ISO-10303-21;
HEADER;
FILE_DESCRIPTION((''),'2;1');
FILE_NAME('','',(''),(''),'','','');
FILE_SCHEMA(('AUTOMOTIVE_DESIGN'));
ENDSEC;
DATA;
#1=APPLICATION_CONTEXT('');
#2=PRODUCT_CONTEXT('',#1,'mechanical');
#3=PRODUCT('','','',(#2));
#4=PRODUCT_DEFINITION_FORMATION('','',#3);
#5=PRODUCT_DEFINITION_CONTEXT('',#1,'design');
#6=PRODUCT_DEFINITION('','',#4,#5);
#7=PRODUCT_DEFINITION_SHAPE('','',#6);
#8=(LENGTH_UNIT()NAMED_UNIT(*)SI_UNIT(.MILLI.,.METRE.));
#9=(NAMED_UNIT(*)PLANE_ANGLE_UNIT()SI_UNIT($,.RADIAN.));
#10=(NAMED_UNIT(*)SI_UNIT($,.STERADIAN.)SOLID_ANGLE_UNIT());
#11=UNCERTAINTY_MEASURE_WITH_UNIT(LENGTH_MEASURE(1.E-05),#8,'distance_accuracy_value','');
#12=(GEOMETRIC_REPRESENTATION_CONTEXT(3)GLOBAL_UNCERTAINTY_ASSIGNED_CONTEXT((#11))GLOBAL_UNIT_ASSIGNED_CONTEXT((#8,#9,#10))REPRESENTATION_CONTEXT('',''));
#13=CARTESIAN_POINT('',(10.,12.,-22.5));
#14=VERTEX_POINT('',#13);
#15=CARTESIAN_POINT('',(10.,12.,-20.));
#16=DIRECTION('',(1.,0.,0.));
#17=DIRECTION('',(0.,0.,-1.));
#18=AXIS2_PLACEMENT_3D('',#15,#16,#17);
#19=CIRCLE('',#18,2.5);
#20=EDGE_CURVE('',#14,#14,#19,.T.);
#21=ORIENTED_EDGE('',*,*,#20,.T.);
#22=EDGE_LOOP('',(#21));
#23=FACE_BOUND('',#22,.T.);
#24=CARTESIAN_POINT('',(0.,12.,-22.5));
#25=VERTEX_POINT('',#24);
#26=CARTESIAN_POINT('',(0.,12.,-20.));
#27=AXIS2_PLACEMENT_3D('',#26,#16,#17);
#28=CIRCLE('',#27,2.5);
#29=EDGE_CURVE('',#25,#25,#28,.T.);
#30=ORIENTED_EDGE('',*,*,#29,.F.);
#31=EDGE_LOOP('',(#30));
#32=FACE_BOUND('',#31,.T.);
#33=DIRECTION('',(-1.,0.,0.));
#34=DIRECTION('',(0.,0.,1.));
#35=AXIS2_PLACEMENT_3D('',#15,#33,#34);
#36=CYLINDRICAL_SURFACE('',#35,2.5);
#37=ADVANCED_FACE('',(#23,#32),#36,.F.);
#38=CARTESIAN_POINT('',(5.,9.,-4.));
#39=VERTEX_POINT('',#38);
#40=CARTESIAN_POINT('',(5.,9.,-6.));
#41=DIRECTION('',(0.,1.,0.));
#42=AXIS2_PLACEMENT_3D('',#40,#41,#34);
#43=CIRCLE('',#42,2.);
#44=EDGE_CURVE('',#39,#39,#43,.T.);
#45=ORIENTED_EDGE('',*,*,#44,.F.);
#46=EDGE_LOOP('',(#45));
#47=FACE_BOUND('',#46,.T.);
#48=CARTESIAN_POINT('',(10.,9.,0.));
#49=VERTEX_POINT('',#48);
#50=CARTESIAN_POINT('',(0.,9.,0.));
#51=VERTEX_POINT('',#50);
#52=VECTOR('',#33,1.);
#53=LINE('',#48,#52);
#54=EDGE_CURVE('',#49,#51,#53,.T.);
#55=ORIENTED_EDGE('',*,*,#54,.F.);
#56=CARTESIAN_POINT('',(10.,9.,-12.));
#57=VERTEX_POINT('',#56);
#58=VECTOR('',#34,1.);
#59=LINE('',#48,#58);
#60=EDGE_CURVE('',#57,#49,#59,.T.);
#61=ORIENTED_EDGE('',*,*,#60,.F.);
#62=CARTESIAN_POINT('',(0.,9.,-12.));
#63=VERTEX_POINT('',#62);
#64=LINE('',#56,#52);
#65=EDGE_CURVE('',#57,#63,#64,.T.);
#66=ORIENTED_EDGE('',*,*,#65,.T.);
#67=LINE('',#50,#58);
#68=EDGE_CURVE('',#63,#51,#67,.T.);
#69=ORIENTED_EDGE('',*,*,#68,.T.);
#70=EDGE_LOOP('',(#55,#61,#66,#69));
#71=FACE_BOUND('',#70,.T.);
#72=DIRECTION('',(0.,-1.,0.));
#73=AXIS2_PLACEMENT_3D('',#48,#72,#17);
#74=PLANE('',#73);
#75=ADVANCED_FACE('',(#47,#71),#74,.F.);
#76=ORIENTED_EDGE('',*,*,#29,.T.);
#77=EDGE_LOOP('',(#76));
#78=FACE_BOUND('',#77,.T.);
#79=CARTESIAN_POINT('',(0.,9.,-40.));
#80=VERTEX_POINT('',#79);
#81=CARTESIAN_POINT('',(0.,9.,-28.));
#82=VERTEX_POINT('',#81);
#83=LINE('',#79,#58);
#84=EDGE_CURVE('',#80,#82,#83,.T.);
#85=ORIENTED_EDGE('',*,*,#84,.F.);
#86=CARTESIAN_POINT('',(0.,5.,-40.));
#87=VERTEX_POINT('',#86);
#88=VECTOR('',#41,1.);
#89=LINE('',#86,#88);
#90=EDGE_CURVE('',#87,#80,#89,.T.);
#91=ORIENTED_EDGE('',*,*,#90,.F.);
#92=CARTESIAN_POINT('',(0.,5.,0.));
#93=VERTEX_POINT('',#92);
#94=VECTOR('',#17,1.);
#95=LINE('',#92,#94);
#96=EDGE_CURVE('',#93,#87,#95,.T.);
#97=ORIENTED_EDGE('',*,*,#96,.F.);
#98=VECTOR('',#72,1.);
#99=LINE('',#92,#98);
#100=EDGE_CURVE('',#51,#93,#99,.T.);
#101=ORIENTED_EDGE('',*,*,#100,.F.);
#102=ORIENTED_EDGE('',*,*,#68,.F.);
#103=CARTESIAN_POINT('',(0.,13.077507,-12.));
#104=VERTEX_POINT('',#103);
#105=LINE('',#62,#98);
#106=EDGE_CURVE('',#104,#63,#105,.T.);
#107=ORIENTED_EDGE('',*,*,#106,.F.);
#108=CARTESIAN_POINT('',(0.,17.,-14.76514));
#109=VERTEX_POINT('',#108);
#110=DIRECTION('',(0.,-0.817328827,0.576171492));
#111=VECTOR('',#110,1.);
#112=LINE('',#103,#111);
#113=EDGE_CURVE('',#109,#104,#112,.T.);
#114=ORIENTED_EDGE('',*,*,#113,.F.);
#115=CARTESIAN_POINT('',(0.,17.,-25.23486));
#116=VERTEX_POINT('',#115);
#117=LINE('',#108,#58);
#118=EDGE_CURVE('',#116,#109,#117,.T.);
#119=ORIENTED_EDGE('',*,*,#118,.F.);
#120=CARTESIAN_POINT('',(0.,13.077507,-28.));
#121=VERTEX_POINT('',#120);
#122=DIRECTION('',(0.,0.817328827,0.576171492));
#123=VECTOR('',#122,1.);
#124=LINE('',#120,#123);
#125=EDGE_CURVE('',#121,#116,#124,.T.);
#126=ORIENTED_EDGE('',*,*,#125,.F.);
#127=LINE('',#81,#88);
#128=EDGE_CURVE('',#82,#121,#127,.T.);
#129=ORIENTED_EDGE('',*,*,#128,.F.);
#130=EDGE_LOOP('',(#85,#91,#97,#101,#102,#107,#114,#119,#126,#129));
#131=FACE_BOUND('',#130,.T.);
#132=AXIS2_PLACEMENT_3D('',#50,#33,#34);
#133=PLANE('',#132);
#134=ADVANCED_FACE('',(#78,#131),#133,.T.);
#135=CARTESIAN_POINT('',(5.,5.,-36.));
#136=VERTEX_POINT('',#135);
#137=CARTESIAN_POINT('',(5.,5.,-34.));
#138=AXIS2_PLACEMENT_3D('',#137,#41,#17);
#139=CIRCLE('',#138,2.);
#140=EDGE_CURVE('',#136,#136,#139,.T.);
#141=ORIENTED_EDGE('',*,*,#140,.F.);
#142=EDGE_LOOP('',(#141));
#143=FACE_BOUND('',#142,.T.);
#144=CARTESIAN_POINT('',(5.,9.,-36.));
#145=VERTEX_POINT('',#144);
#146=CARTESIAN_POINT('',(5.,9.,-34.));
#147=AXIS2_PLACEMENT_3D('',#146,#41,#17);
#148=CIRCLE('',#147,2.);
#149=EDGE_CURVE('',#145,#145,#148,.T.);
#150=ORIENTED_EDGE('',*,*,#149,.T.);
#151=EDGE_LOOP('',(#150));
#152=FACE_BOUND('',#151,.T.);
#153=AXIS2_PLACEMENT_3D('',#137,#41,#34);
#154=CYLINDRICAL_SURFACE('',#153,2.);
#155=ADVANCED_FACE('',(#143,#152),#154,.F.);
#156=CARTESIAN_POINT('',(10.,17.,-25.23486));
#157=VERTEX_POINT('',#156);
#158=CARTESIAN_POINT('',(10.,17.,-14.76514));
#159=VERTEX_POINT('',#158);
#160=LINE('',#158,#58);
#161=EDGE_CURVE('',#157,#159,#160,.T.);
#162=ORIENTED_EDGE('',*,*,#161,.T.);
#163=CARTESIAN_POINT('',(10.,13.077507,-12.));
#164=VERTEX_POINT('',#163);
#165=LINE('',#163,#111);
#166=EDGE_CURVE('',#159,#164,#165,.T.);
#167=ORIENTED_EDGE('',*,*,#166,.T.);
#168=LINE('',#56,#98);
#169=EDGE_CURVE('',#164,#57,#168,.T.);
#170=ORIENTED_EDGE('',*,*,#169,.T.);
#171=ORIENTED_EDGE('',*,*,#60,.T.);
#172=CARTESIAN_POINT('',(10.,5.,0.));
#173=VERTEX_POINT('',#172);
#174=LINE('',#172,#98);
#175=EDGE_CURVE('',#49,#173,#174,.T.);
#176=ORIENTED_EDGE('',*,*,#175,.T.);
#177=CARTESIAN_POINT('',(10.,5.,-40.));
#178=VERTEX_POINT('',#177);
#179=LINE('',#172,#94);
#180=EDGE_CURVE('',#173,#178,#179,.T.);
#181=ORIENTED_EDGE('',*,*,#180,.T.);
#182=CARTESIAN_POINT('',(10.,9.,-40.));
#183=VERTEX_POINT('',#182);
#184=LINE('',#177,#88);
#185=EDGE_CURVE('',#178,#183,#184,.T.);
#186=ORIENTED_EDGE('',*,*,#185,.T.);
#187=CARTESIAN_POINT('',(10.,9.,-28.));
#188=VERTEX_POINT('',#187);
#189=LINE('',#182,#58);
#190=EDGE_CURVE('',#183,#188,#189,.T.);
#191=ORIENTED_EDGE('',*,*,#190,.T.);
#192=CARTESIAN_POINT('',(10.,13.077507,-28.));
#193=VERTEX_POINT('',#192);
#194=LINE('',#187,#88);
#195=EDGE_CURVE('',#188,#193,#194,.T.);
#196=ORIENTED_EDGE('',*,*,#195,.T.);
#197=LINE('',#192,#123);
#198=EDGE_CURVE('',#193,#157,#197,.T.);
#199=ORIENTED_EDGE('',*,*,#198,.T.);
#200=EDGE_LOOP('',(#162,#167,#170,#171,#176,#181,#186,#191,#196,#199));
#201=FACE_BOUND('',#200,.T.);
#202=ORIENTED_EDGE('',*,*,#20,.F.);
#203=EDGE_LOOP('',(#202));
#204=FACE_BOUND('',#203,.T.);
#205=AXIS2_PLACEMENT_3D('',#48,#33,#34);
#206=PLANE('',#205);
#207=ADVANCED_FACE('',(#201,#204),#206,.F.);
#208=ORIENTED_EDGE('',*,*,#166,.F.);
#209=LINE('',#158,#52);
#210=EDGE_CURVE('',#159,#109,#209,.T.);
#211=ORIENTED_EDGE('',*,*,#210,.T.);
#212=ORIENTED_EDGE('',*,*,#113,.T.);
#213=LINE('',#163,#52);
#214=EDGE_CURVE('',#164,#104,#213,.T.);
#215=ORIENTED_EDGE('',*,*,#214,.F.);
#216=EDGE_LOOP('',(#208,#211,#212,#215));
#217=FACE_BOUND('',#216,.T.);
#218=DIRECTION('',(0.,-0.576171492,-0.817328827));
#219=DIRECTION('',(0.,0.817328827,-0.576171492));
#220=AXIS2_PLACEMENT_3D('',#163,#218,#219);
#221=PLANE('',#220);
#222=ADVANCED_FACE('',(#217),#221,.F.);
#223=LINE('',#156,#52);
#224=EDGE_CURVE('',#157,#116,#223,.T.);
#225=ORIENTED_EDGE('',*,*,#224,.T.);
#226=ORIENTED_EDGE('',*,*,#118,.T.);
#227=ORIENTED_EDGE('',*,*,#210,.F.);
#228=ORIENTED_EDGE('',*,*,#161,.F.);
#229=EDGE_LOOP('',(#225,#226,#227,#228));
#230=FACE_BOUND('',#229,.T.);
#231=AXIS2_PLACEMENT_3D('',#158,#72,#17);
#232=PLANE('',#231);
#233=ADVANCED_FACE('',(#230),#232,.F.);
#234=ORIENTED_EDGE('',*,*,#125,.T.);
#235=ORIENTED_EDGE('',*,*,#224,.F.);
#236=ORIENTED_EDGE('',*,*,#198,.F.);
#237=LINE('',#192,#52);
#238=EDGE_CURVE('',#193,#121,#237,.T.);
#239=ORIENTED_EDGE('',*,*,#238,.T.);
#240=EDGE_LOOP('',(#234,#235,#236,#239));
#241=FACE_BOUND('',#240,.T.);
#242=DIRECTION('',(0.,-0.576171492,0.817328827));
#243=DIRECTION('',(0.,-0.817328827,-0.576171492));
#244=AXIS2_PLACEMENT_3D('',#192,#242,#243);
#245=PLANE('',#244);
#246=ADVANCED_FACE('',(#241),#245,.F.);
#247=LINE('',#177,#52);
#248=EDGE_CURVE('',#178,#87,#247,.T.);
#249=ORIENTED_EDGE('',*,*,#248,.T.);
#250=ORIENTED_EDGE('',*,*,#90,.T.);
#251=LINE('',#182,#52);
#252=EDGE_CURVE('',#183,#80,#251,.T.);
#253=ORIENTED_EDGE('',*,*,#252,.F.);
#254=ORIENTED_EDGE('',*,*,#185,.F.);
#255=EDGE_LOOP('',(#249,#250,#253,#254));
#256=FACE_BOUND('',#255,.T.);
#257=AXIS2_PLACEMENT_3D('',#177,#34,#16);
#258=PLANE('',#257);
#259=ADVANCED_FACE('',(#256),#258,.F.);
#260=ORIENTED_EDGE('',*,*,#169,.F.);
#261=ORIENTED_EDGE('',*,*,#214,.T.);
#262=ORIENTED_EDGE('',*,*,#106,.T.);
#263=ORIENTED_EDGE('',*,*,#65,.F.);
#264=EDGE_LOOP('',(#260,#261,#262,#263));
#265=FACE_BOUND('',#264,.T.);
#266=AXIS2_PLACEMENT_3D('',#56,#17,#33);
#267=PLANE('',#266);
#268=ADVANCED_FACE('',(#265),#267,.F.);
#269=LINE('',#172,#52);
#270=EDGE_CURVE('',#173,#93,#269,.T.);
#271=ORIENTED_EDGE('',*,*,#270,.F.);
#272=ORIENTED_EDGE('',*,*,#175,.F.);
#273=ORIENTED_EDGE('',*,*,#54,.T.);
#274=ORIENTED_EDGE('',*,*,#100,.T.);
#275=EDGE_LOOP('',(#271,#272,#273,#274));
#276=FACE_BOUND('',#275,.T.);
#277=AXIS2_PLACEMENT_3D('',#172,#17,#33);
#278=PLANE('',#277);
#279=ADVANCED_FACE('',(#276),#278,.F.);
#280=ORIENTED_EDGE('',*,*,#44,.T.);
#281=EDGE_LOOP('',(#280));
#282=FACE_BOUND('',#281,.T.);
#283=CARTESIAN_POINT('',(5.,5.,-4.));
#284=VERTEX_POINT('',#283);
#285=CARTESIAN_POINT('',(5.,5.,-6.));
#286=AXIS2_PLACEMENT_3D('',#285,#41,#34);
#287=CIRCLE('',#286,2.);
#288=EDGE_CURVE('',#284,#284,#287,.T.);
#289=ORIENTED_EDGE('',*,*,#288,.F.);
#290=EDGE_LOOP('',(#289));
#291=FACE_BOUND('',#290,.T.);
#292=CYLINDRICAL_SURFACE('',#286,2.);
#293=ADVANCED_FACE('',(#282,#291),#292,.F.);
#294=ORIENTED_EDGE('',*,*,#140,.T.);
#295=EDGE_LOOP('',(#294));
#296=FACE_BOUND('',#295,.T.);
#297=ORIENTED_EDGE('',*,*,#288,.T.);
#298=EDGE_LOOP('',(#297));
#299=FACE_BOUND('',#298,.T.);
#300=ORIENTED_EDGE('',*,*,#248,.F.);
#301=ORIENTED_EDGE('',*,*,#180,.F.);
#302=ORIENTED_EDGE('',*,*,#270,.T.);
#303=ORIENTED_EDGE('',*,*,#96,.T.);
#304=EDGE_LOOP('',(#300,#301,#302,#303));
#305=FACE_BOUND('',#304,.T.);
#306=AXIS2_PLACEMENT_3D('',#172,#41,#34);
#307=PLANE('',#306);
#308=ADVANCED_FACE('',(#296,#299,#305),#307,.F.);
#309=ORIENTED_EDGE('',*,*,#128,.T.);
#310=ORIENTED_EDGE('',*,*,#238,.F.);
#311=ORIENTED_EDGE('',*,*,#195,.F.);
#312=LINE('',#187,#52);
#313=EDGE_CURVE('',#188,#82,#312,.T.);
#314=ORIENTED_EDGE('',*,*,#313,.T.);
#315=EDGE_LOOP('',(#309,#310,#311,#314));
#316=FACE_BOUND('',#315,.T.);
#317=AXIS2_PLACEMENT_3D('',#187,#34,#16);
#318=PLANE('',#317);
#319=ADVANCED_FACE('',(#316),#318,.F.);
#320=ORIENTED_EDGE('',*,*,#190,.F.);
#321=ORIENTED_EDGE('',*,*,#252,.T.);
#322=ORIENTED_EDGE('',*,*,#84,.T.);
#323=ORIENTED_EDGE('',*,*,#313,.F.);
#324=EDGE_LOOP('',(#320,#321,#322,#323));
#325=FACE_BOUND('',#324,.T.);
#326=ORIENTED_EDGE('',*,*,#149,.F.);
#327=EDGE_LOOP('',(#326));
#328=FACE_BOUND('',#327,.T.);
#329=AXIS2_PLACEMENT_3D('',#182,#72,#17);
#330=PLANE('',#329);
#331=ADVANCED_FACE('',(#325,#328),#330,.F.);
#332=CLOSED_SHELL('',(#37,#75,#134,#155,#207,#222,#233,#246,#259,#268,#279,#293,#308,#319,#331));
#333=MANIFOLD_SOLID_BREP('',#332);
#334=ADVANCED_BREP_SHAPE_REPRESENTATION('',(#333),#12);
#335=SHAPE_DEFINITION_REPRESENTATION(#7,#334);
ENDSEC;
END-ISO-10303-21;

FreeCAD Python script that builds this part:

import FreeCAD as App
import Part
import Sketcher

V = App.Vector


def add_polygon(sketch, points):
    """Adds a closed chain of lines whose ends are joined by coincident constraints."""
    first, n = sketch.GeometryCount, len(points)
    for a, b in zip(points, points[1:] + points[:1]):
        sketch.addGeometry(Part.LineSegment(App.Vector(*a, 0), App.Vector(*b, 0)), False)
    for i in range(n):
        sketch.addConstraint(Sketcher.Constraint("Coincident", first + i, 2, first + (i + 1) % n, 1))

doc = App.newDocument("Part")
body = doc.addObject("PartDesign::Body", "Body")

sketch1 = body.newObject("Sketcher::SketchObject", "Sketch")
sketch1.AttachmentSupport = (doc.getObject("YZ_Plane"), [""])
sketch1.MapMode = "FlatFace"
add_polygon(sketch1, [(5, 0), (5, -40), (9, -40), (9, -28), (13.077507, -28), (17, -25.23486), (17, -14.76514), (13.077507, -12), (9, -12), (9, 0)])
sketch1.addGeometry(Part.Circle(V(12, -20, 0), V(0, 0, 1), 2.5), False)
sketch1.addConstraint([
    Sketcher.Constraint("Vertical", 0),
    Sketcher.Constraint("Horizontal", 1),
    Sketcher.Constraint("Vertical", 2),
    Sketcher.Constraint("Horizontal", 3),
    Sketcher.Constraint("Vertical", 5),
    Sketcher.Constraint("Horizontal", 7),
    Sketcher.Constraint("Vertical", 8),
    Sketcher.Constraint("Horizontal", 9),
    Sketcher.Constraint("PointOnObject", 8, 2, -1),
    Sketcher.Constraint("Vertical", 3, 2, 6, 2),
    Sketcher.Constraint("Vertical", 2, 2, 7, 2),
    Sketcher.Constraint("Equal", 2, 8),
    Sketcher.Constraint("Equal", 4, 6),
    Sketcher.Constraint("Diameter", 10, 5.0),
    Sketcher.Constraint("DistanceX", 1, 1, 1, 2, 4.0),
    Sketcher.Constraint("DistanceY", 0, 2, 0, 1, 40.0),
    Sketcher.Constraint("DistanceY", 2, 1, 2, 2, 12.0),
    Sketcher.Constraint("DistanceX", -1, 1, 10, 3, 12.0),
    Sketcher.Constraint("DistanceY", 10, 3, -1, 1, 20.0),
    Sketcher.Constraint("DistanceX", -1, 1, 0, 2, 5.0),
    Sketcher.Constraint("DistanceX", -1, 1, 4, 2, 17.0),
    Sketcher.Constraint("DistanceY", 5, 1, 5, 2, 10.46972),
    Sketcher.Constraint("Distance", 4, 4.799161),
])
pad1 = body.newObject("PartDesign::Pad", "Pad")
pad1.Profile = sketch1
pad1.Length = 10

sketch2 = body.newObject("Sketcher::SketchObject", "Sketch001")
sketch2.AttachmentSupport = (doc.getObject("XZ_Plane"), [""])
sketch2.MapMode = "FlatFace"
sketch2.AttachmentOffset = App.Placement(V(0, 0, -9), App.Rotation())
sketch2.addGeometry([
    Part.Circle(V(5, -6, 0), V(0, 0, 1), 2),
    Part.Circle(V(5, -34, 0), V(0, 0, 1), 2),
], False)
sketch2.addConstraint([
    Sketcher.Constraint("Equal", 0, 1),
    Sketcher.Constraint("Vertical", 0, 3, 1, 3),
    Sketcher.Constraint("Diameter", 0, 4.0),
    Sketcher.Constraint("DistanceX", -1, 1, 0, 3, 5.0),
    Sketcher.Constraint("DistanceY", 0, 3, -1, 1, 6.0),
    Sketcher.Constraint("DistanceY", 1, 3, -1, 1, 34.0),
])
pocket1 = body.newObject("PartDesign::Pocket", "Pocket")
pocket1.Profile = sketch2
pocket1.Type = "ThroughAll"
pocket1.Reversed = True

doc.recompute()
